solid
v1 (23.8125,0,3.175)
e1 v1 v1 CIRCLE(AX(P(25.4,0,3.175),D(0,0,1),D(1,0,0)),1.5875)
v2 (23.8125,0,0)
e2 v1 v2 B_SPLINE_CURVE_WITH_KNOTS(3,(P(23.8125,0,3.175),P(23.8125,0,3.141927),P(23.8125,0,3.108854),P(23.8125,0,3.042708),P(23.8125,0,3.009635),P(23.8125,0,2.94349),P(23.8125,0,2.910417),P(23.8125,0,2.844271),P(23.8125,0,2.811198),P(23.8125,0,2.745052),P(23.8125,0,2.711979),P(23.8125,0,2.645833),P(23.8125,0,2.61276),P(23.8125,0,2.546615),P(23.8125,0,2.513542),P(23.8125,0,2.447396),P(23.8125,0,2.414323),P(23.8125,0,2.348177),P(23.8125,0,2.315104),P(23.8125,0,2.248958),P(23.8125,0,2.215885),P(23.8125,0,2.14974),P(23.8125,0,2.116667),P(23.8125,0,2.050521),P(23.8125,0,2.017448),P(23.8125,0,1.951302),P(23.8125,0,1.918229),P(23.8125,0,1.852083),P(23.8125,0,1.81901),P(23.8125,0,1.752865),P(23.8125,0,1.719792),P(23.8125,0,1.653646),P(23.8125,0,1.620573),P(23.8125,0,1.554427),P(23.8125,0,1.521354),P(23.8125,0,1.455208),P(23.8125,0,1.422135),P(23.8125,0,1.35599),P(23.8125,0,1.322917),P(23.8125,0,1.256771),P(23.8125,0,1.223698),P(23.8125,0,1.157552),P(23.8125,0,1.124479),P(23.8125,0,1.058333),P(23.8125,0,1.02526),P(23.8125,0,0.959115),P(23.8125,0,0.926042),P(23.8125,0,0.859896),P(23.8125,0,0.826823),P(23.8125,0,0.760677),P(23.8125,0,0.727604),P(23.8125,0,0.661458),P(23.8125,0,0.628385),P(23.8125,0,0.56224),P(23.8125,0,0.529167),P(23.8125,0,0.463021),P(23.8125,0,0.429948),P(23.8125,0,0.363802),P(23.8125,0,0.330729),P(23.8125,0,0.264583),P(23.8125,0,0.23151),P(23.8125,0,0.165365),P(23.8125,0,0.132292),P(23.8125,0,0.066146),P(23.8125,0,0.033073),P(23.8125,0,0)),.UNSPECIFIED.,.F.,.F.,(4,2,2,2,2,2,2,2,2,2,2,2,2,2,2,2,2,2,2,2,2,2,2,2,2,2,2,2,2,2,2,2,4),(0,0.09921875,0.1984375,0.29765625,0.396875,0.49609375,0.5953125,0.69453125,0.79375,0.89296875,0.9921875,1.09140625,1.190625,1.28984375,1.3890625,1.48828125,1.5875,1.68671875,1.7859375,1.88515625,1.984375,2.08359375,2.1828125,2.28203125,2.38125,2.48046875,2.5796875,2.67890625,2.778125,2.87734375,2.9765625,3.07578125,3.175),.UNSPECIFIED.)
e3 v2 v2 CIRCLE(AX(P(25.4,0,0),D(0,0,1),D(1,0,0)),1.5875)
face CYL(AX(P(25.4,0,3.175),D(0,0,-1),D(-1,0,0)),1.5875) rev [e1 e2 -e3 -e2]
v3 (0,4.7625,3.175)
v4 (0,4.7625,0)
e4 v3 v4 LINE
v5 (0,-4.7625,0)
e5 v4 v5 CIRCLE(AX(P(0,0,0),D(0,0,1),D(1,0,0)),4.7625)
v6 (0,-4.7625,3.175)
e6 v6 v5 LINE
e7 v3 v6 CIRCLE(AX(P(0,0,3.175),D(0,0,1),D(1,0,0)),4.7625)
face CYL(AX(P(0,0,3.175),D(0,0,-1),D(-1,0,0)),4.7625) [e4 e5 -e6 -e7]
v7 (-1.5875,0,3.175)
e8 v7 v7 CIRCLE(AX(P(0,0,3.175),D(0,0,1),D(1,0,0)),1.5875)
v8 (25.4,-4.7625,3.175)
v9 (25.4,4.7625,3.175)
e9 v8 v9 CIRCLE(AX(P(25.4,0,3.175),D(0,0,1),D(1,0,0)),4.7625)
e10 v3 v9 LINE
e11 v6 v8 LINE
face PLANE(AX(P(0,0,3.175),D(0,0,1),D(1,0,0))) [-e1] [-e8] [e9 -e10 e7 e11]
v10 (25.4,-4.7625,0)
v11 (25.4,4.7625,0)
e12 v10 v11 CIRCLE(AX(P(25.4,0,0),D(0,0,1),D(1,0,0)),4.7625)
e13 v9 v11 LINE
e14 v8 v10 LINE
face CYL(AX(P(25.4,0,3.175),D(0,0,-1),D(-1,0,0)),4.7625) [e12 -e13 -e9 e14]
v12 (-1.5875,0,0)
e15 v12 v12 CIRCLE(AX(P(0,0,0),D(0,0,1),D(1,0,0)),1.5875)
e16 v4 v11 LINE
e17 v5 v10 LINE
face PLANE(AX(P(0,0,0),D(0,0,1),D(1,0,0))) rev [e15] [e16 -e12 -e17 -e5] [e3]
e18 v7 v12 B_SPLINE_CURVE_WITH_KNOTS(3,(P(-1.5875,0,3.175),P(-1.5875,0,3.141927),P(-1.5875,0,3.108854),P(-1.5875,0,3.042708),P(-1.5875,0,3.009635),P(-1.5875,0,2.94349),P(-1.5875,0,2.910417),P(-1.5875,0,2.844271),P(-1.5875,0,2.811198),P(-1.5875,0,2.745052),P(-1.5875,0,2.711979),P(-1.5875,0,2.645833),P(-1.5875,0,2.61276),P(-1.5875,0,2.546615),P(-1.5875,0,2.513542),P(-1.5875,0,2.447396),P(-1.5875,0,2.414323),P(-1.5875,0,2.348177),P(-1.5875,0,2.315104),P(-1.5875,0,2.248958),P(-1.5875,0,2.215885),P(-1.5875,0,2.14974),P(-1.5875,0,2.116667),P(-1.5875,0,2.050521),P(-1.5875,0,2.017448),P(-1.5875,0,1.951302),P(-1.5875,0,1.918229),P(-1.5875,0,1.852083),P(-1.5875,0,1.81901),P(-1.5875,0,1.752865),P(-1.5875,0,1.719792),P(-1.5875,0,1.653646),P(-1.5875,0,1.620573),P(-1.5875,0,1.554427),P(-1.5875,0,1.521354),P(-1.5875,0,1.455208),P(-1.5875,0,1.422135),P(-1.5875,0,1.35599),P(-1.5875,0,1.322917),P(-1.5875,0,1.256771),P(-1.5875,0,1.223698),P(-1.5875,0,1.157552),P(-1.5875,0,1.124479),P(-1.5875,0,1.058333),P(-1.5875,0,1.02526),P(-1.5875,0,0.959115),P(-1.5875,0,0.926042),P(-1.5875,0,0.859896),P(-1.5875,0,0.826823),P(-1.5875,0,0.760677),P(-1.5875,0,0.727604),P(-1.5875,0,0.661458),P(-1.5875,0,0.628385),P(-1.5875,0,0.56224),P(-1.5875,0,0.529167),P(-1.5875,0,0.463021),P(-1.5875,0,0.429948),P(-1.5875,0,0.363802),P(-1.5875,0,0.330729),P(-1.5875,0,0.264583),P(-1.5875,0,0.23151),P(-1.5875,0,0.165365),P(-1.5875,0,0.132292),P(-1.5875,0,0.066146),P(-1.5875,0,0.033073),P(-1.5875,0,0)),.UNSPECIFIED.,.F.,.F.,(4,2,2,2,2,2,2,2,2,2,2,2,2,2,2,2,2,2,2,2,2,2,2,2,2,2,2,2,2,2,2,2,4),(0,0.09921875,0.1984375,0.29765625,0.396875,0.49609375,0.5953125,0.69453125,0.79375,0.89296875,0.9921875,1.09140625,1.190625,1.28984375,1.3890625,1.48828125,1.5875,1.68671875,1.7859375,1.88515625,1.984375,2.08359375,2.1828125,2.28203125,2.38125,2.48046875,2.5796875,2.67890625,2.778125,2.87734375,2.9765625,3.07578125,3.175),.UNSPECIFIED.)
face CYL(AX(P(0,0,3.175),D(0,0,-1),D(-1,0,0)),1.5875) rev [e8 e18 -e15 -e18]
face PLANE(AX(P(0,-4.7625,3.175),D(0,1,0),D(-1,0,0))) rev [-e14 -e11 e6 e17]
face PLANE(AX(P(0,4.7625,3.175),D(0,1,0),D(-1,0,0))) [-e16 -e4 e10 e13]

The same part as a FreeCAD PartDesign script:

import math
import FreeCAD as App
import Part
import Sketcher
from FreeCAD import Vector
Q = App.Units.Quantity

doc = App.newDocument("Part")
params = doc.addObject("Spreadsheet::Sheet", "Params")
for row, (alias, value) in enumerate([
    ("sketch1_width", "1 in"),
    ("sketch1_diameter", "0.125 in"),
    ("sketch1_radius", "0.1875 in"),
    ("pad1_length", "0.125 in"),
], start=1):
    params.set(f"A{row}", alias)
    params.set(f"B{row}", "=" + value)
    params.setAlias(f"B{row}", alias)

body = doc.addObject("PartDesign::Body", "Body")

sketch1 = body.newObject("Sketcher::SketchObject", "Sketch")
sketch1.AttachmentSupport = (doc.getObject("XY_Plane"), [""])
sketch1.MapMode = "FlatFace"
sketch1.addGeometry(Part.LineSegment(Vector(25.4, 4.8, 0), Vector(0, 4.8, 0)), False)
sketch1.addGeometry(Part.ArcOfCircle(Part.Circle(Vector(0, 0, 0), Vector(0, 0, 1), 4.8), math.radians(90), math.radians(270)), False)
sketch1.addGeometry(Part.LineSegment(Vector(0, -4.8, 0), Vector(25.4, -4.8, 0)), False)
sketch1.addGeometry(Part.ArcOfCircle(Part.Circle(Vector(25.4, 0, 0), Vector(0, 0, 1), 4.8), math.radians(-90), math.radians(90)), False)
sketch1.addGeometry(Part.Circle(Vector(0, 0, 0), Vector(0, 0, 1), 1.6), False)
sketch1.addGeometry(Part.Circle(Vector(25.4, 0, 0), Vector(0, 0, 1), 1.6), False)
sketch1.addConstraint(Sketcher.Constraint("Tangent", 0, 2, 1, 1))
sketch1.addConstraint(Sketcher.Constraint("Tangent", 1, 2, 2, 1))
sketch1.addConstraint(Sketcher.Constraint("Tangent", 2, 2, 3, 1))
sketch1.addConstraint(Sketcher.Constraint("Tangent", 3, 2, 0, 1))
sketch1.addConstraint(Sketcher.Constraint("Horizontal", 0))
sketch1.addConstraint(Sketcher.Constraint("Horizontal", 2))
sketch1.addConstraint(Sketcher.Constraint("Coincident", 1, 3, -1, 1))
sketch1.addConstraint(Sketcher.Constraint("Coincident", 4, 3, -1, 1))
sketch1.addConstraint(Sketcher.Constraint("Coincident", 5, 3, 3, 3))
sketch1.addConstraint(Sketcher.Constraint("Equal", 4, 5))
sketch1.addConstraint(Sketcher.Constraint("DistanceX", 0, 2, 0, 1, Q("1 in")))
sketch1.addConstraint(Sketcher.Constraint("Diameter", 4, Q("0.125 in")))
sketch1.addConstraint(Sketcher.Constraint("Radius", 1, Q("0.1875 in")))
sketch1.setExpression("Constraints[10]", "Params.sketch1_width")
sketch1.setExpression("Constraints[11]", "Params.sketch1_diameter")
sketch1.setExpression("Constraints[12]", "Params.sketch1_radius")
pad1 = body.newObject("PartDesign::Pad", "Pad")
pad1.Profile = sketch1
pad1.setExpression("Length", "Params.pad1_length")

doc.recompute()
